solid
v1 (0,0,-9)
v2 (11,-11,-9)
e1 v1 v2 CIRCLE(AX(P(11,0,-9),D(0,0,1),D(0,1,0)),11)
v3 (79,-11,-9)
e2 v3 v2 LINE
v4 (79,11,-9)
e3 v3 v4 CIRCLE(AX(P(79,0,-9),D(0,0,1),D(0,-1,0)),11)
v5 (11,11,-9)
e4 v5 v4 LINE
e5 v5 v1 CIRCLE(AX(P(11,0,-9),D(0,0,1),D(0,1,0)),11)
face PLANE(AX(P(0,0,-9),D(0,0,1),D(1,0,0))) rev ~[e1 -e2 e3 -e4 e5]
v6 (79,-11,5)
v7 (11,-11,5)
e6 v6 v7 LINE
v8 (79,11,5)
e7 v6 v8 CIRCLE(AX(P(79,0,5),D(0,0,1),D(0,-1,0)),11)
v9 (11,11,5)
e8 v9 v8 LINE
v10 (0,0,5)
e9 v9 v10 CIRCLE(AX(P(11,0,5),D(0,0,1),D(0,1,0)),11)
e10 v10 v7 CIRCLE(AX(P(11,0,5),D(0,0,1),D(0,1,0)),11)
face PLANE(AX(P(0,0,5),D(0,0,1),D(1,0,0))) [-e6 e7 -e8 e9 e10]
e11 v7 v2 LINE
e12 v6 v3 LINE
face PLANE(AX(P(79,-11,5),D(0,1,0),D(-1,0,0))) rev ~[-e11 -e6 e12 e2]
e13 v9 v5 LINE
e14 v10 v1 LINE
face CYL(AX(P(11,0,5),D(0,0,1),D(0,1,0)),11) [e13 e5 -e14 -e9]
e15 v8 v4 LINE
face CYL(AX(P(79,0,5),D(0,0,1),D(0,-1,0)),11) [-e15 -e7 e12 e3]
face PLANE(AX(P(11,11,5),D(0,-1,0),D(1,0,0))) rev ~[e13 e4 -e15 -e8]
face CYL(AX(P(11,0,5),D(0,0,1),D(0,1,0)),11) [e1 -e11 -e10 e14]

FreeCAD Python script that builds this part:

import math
import FreeCAD as App
import Part
import Sketcher

V = App.Vector

doc = App.newDocument("Part")
body = doc.addObject("PartDesign::Body", "Body")

# Sketch on XY plane
sketch1 = body.newObject("Sketcher::SketchObject", "Sketch")
sketch1.AttachmentSupport = (doc.getObject("XY_Plane"), [""])
sketch1.MapMode = "FlatFace"
sketch1.AttachmentOffset = App.Placement(V(0, 0, 5), App.Rotation())
sketch1.addGeometry([
    Part.LineSegment(V(79, 11, 0), V(11, 11, 0)),
    Part.ArcOfCircle(Part.Circle(V(11, 0, 0), V(0, 0, 1), 11), math.radians(90), math.radians(270)),
    Part.LineSegment(V(11, -11, 0), V(79, -11, 0)),
    Part.ArcOfCircle(Part.Circle(V(79, 0, 0), V(0, 0, 1), 11), math.radians(-90), math.radians(90)),
], False)
sketch1.addConstraint([
    Sketcher.Constraint("Tangent", 0, 2, 1, 1),
    Sketcher.Constraint("Tangent", 1, 2, 2, 1),
    Sketcher.Constraint("Tangent", 2, 2, 3, 1),
    Sketcher.Constraint("Tangent", 3, 2, 0, 1),
    Sketcher.Constraint("Horizontal", 0),
    Sketcher.Constraint("Horizontal", 2),
    Sketcher.Constraint("PointOnObject", 1, 3, -1),
    Sketcher.Constraint("Radius", 1, 11.0),
    Sketcher.Constraint("DistanceX", -1, 1, 1, 3, 11.0),
    Sketcher.Constraint("DistanceX", 0, 2, 0, 1, 68.0),
])
pad1 = body.newObject("PartDesign::Pad", "Pad")
pad1.Profile = sketch1
pad1.Length = 14
pad1.Reversed = True

doc.recompute()
